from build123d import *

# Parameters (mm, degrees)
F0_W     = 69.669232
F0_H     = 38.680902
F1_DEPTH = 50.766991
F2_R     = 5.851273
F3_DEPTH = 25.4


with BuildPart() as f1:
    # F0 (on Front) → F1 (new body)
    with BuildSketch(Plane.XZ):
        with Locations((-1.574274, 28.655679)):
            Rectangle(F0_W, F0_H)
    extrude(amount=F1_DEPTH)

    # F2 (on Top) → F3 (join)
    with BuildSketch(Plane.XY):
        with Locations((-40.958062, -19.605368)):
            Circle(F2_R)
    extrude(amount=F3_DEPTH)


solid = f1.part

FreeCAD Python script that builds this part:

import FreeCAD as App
import Part
import Sketcher
Q = App.Units.Quantity

doc = App.newDocument("Part")
body = doc.addObject("PartDesign::Body", "Body")

sketch1 = body.newObject("Sketcher::SketchObject", "Sketch")
sketch1.AttachmentSupport = (doc.getObject("XZ_Plane"), [""])
sketch1.MapMode = "FlatFace"
sketch1.addGeometry([
    Part.LineSegment(App.Vector(-36.40889, 47.99613, 0), App.Vector(-36.40889, 9.315228, 0)),
    Part.LineSegment(App.Vector(-36.40889, 9.315228, 0), App.Vector(33.260342, 9.315228, 0)),
    Part.LineSegment(App.Vector(33.260342, 9.315228, 0), App.Vector(33.260342, 47.99613, 0)),
    Part.LineSegment(App.Vector(33.260342, 47.99613, 0), App.Vector(-36.40889, 47.99613, 0)),
], False)
sketch1.addConstraint([
    Sketcher.Constraint("Coincident", 0, 2, 1, 1),
    Sketcher.Constraint("Coincident", 1, 2, 2, 1),
    Sketcher.Constraint("Coincident", 2, 2, 3, 1),
    Sketcher.Constraint("Coincident", 3, 2, 0, 1),
    Sketcher.Constraint("Vertical", 0),
    Sketcher.Constraint("Horizontal", 1),
    Sketcher.Constraint("Vertical", 2),
    Sketcher.Constraint("Horizontal", 3),
    Sketcher.Constraint("DistanceX", 1, 1, 1, 2, Q("69.669232 mm")),
    Sketcher.Constraint("DistanceY", 0, 2, 0, 1, Q("38.680902 mm")),
    Sketcher.Constraint("DistanceX", 0, 2, -1, 1, Q("36.40889 mm")),
    Sketcher.Constraint("DistanceY", -1, 1, 2, 2, Q("47.99613 mm")),
])
pad1 = body.newObject("PartDesign::Pad", "Pad")
pad1.Profile = sketch1
pad1.Length = 50.766991

sketch2 = body.newObject("Sketcher::SketchObject", "Sketch001")
sketch2.AttachmentSupport = (doc.getObject("XY_Plane"), [""])
sketch2.MapMode = "FlatFace"
sketch2.addGeometry(Part.Circle(App.Vector(-40.958062, -19.605368, 0), App.Vector(0, 0, 1), 5.851273), False)
sketch2.addConstraint([
    Sketcher.Constraint("Diameter", 0, Q("11.702546 mm")),
    Sketcher.Constraint("DistanceX", 0, 3, -1, 1, Q("40.958062 mm")),
    Sketcher.Constraint("DistanceY", 0, 3, -1, 1, Q("19.605368 mm")),
])
pad2 = body.newObject("PartDesign::Pad", "Pad001")
pad2.Profile = sketch2
pad2.Length = Q("1 in")

doc.recompute()
